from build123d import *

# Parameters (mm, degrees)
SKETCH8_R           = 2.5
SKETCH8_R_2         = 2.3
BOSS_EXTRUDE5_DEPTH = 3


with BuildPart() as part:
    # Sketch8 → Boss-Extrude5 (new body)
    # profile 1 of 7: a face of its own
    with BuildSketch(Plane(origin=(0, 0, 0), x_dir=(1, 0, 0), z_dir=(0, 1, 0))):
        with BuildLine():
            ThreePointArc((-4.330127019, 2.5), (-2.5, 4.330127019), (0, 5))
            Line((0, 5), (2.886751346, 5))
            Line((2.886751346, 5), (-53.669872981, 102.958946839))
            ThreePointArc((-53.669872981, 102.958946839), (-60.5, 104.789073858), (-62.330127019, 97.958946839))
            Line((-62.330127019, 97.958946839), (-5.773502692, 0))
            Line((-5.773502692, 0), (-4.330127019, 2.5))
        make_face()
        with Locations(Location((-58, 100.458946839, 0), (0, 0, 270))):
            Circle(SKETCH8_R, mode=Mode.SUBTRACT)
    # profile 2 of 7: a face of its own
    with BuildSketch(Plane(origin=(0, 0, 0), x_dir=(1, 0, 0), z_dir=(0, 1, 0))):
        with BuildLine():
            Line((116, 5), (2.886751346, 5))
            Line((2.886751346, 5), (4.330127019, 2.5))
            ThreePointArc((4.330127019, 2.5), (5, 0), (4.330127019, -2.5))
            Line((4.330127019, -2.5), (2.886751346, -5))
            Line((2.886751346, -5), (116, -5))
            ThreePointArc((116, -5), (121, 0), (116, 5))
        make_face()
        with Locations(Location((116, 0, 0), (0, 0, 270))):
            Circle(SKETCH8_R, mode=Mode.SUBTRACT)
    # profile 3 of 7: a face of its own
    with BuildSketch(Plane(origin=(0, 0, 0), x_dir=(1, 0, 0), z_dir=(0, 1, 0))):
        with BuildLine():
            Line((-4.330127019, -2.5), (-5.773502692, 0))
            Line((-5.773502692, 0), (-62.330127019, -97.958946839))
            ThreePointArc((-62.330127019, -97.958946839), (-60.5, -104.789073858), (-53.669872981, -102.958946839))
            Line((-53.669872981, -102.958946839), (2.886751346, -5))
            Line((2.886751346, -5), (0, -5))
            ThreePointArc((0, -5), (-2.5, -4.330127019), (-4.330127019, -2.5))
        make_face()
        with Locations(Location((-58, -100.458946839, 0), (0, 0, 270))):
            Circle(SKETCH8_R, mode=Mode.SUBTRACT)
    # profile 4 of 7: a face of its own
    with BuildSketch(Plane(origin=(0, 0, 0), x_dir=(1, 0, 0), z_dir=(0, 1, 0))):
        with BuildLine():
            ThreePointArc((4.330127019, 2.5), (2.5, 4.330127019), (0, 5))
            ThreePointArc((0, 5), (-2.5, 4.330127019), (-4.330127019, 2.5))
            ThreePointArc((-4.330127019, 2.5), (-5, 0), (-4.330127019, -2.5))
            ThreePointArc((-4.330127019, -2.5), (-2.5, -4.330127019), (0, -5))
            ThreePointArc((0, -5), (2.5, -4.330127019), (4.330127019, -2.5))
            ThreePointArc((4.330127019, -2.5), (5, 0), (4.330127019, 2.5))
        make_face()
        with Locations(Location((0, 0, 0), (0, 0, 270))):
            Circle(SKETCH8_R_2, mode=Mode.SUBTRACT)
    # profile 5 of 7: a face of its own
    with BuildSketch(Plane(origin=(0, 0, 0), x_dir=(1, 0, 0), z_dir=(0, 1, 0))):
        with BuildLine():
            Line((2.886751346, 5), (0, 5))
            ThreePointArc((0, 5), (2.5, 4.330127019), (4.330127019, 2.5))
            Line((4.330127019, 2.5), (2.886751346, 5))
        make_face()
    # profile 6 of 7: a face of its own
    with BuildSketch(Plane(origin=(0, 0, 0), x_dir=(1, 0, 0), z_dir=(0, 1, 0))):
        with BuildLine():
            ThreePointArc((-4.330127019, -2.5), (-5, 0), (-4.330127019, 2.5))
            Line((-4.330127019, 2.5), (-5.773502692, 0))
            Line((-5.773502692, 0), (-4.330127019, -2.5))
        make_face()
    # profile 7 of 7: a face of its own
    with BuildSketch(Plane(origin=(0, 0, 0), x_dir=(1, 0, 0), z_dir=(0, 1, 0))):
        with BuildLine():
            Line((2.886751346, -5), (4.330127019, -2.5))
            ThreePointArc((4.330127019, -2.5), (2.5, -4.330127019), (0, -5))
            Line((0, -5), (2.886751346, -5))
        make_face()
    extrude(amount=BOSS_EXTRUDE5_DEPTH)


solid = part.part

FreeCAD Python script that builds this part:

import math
import FreeCAD as App
import Part
import Sketcher
from FreeCAD import Vector

doc = App.newDocument("Part")
params = doc.addObject("Spreadsheet::Sheet", "Params")
for row, (alias, value) in enumerate([
    ("sketch1_diameter", "5 mm"),
    ("sketch1_radius", "5 mm"),
    ("sketch1_diameter2", "4.6 mm"),
    ("pad1_length", "3 mm"),
], start=1):
    params.set(f"A{row}", alias)
    params.set(f"B{row}", "=" + value)
    params.setAlias(f"B{row}", alias)

body = doc.addObject("PartDesign::Body", "Body")

sketch1 = body.newObject("Sketcher::SketchObject", "Sketch")
sketch1.AttachmentSupport = (doc.getObject("XZ_Plane"), [""])
sketch1.MapMode = "FlatFace"
sketch1.addGeometry(Part.LineSegment(Vector(-62.3, -98, 0), Vector(-5.8, 0, 0)), False)
sketch1.addGeometry(Part.LineSegment(Vector(-5.8, 0, 0), Vector(-62.3, 98, 0)), False)
sketch1.addGeometry(Part.ArcOfCircle(Part.Circle(Vector(-58, 100.5, 0), Vector(0, 0, 1), 5), math.radians(30), math.radians(210)), False)
sketch1.addGeometry(Part.LineSegment(Vector(-53.7, 103, 0), Vector(2.9, 5, 0)), False)
sketch1.addGeometry(Part.LineSegment(Vector(2.9, 5, 0), Vector(116, 5, 0)), False)
sketch1.addGeometry(Part.ArcOfCircle(Part.Circle(Vector(116, 0, 0), Vector(0, 0, 1), 5), math.radians(-90), math.radians(90)), False)
sketch1.addGeometry(Part.LineSegment(Vector(116, -5, 0), Vector(2.9, -5, 0)), False)
sketch1.addGeometry(Part.LineSegment(Vector(2.9, -5, 0), Vector(-53.7, -103, 0)), False)
sketch1.addGeometry(Part.ArcOfCircle(Part.Circle(Vector(-58, -100.5, 0), Vector(0, 0, 1), 5), math.radians(150), math.radians(330)), False)
sketch1.addGeometry(Part.Circle(Vector(-58, -100.5, 0), Vector(0, 0, 1), 2.5), False)
sketch1.addGeometry(Part.Circle(Vector(0, 0, 0), Vector(0, 0, 1), 2.3), False)
sketch1.addGeometry(Part.Circle(Vector(116, 0, 0), Vector(0, 0, 1), 2.5), False)
sketch1.addGeometry(Part.Circle(Vector(-58, 100.5, 0), Vector(0, 0, 1), 2.5), False)
sketch1.addConstraint(Sketcher.Constraint("Coincident", 0, 2, 1, 1))
sketch1.addConstraint(Sketcher.Constraint("Tangent", 1, 2, 2, 2))
sketch1.addConstraint(Sketcher.Constraint("Tangent", 2, 1, 3, 1))
sketch1.addConstraint(Sketcher.Constraint("Coincident", 3, 2, 4, 1))
sketch1.addConstraint(Sketcher.Constraint("Tangent", 4, 2, 5, 2))
sketch1.addConstraint(Sketcher.Constraint("Tangent", 5, 1, 6, 1))
sketch1.addConstraint(Sketcher.Constraint("Coincident", 6, 2, 7, 1))
sketch1.addConstraint(Sketcher.Constraint("Tangent", 7, 2, 8, 2))
sketch1.addConstraint(Sketcher.Constraint("Tangent", 8, 1, 0, 1))
sketch1.addConstraint(Sketcher.Constraint("Horizontal", 4))
sketch1.addConstraint(Sketcher.Constraint("Horizontal", 6))
sketch1.addConstraint(Sketcher.Constraint("Coincident", 10, 3, -1, 1))
sketch1.addConstraint(Sketcher.Constraint("Coincident", 9, 3, 8, 3))
sketch1.addConstraint(Sketcher.Constraint("Coincident", 11, 3, 5, 3))
sketch1.addConstraint(Sketcher.Constraint("Coincident", 12, 3, 2, 3))
sketch1.addConstraint(Sketcher.Constraint("Equal", 2, 5))
sketch1.addConstraint(Sketcher.Constraint("Equal", 5, 8))
sketch1.addConstraint(Sketcher.Constraint("Equal", 9, 11))
sketch1.addConstraint(Sketcher.Constraint("Equal", 11, 12))
sketch1.addConstraint(Sketcher.Constraint("Symmetric", 2, 3, 8, 3, -1))
sketch1.addConstraint(Sketcher.Constraint("Symmetric", 3, 2, 6, 2, -1))
sketch1.addConstraint(Sketcher.Constraint("PointOnObject", 0, 2, -1))
sketch1.addConstraint(Sketcher.Constraint("Parallel", 1, 3))
sketch1.addConstraint(Sketcher.Constraint("Equal", 1, 3))
sketch1.addConstraint(Sketcher.Constraint("Diameter", 9, 5.0))
sketch1.addConstraint(Sketcher.Constraint("Radius", 2, 5.0))
sketch1.addConstraint(Sketcher.Constraint("Diameter", 10, 4.6))
sketch1.addConstraint(Sketcher.Constraint("DistanceX", 2, 3, -1, 1, 58.0))
sketch1.addConstraint(Sketcher.Constraint("DistanceX", -1, 1, 5, 3, 116.0))
sketch1.addConstraint(Sketcher.Constraint("DistanceX", 4, 1, 4, 2, 113.113249))
sketch1.setExpression("Constraints[24]", "Params.sketch1_diameter")
sketch1.setExpression("Constraints[25]", "Params.sketch1_radius")
sketch1.setExpression("Constraints[26]", "Params.sketch1_diameter2")
pad1 = body.newObject("PartDesign::Pad", "Pad")
pad1.Profile = sketch1
pad1.setExpression("Length", "Params.pad1_length")
pad1.Reversed = True

doc.recompute()
